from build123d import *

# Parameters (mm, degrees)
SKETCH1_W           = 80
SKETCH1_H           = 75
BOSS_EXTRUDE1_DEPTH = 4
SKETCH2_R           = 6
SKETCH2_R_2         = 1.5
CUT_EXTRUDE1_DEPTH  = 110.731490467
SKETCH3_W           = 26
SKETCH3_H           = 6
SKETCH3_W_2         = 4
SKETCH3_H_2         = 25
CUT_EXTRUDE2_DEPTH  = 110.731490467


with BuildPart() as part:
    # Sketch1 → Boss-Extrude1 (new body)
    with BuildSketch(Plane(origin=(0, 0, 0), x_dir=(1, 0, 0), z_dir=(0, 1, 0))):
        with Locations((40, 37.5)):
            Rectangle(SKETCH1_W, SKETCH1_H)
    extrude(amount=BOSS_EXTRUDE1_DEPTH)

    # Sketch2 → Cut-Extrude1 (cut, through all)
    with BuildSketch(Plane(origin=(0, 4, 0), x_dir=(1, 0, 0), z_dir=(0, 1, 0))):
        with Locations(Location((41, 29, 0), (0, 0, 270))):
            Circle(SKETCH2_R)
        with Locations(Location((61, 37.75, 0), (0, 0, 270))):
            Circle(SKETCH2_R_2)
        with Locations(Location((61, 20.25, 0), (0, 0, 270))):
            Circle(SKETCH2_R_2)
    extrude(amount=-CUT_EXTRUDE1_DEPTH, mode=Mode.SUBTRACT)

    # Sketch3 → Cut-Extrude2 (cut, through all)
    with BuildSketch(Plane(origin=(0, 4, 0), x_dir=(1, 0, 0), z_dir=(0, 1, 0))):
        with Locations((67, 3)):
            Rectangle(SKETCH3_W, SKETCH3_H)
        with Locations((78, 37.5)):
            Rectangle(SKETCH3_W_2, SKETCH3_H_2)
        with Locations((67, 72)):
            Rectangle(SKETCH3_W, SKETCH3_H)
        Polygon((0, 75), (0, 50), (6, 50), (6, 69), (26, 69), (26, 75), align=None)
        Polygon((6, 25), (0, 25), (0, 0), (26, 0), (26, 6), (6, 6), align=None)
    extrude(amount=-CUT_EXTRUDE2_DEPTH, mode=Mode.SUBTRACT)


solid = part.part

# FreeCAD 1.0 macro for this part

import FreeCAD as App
import Part
import Sketcher
Q = App.Units.Quantity


def add_polygon(sketch, points):
    """Adds a closed chain of lines whose ends are joined by coincident constraints."""
    first, n = sketch.GeometryCount, len(points)
    for a, b in zip(points, points[1:] + points[:1]):
        sketch.addGeometry(Part.LineSegment(App.Vector(*a, 0), App.Vector(*b, 0)), False)
    for i in range(n):
        sketch.addConstraint(Sketcher.Constraint("Coincident", first + i, 2, first + (i + 1) % n, 1))

doc = App.newDocument("Part")
body = doc.addObject("PartDesign::Body", "Body")

sketch1 = doc.addObject("Sketcher::SketchObject", "Sketch")
body.addObject(sketch1)
sketch1.AttachmentSupport = (doc.XZ_Plane, [""])
sketch1.MapMode = "FlatFace"
add_polygon(sketch1, [(0, -75), (0, 0), (80, 0), (80, -75)])
sketch1.addConstraint([
    Sketcher.Constraint("Vertical", 0),
    Sketcher.Constraint("Horizontal", 1),
    Sketcher.Constraint("Vertical", 2),
    Sketcher.Constraint("Horizontal", 3),
    Sketcher.Constraint("Coincident", 0, 2, -1, 1),
    Sketcher.Constraint("DistanceX", 1, 1, 1, 2, Q("80 mm")),
    Sketcher.Constraint("DistanceY", 0, 1, 0, 2, Q("75 mm")),
])
pad1 = doc.addObject("PartDesign::Pad", "Pad")
body.addObject(pad1)
pad1.Profile = sketch1
pad1.Length = 4
pad1.Reversed = True

sketch2 = doc.addObject("Sketcher::SketchObject", "Sketch001")
body.addObject(sketch2)
sketch2.AttachmentSupport = (doc.XZ_Plane, [""])
sketch2.MapMode = "FlatFace"
sketch2.AttachmentOffset = App.Placement(App.Vector(0, 0, -4), App.Rotation())
sketch2.addGeometry([
    Part.Circle(App.Vector(41, -29, 0), App.Vector(0, 0, 1), 6),
    Part.Circle(App.Vector(61, -37.8, 0), App.Vector(0, 0, 1), 1.5),
    Part.Circle(App.Vector(61, -20.2, 0), App.Vector(0, 0, 1), 1.5),
], False)
sketch2.addConstraint([
    Sketcher.Constraint("Equal", 1, 2),
    Sketcher.Constraint("Vertical", 1, 3, 2, 3),
    Sketcher.Constraint("Diameter", 0, Q("12 mm")),
    Sketcher.Constraint("Diameter", 1, Q("3 mm")),
    Sketcher.Constraint("DistanceX", -1, 1, 0, 3, Q("41 mm")),
    Sketcher.Constraint("DistanceY", 0, 3, -1, 1, Q("29 mm")),
    Sketcher.Constraint("DistanceX", -1, 1, 1, 3, Q("61 mm")),
    Sketcher.Constraint("DistanceY", 1, 3, 2, 3, Q("17.5 mm")),
    Sketcher.Constraint("DistanceY", 1, 3, -1, 1, Q("37.75 mm")),
])
pocket1 = doc.addObject("PartDesign::Pocket", "Pocket")
body.addObject(pocket1)
pocket1.Profile = sketch2
pocket1.Type = "ThroughAll"
pocket1.Reversed = True

sketch3 = doc.addObject("Sketcher::SketchObject", "Sketch002")
body.addObject(sketch3)
sketch3.AttachmentSupport = (doc.XZ_Plane, [""])
sketch3.MapMode = "FlatFace"
sketch3.AttachmentOffset = App.Placement(App.Vector(0, 0, -4), App.Rotation())
add_polygon(sketch3, [(54, -6), (54, 0), (80, 0), (80, -6)])
add_polygon(sketch3, [(76, -50), (76, -25), (80, -25), (80, -50)])
add_polygon(sketch3, [(54, -75), (54, -69), (80, -69), (80, -75)])
add_polygon(sketch3, [(0, -75), (0, -50), (6, -50), (6, -69), (26, -69), (26, -75)])
add_polygon(sketch3, [(6, -25), (0, -25), (0, 0), (26, 0), (26, -6), (6, -6)])
sketch3.addConstraint([
    Sketcher.Constraint("Vertical", 0),
    Sketcher.Constraint("Horizontal", 1),
    Sketcher.Constraint("Vertical", 2),
    Sketcher.Constraint("Horizontal", 3),
    Sketcher.Constraint("Vertical", 4),
    Sketcher.Constraint("Horizontal", 5),
    Sketcher.Constraint("Vertical", 6),
    Sketcher.Constraint("Horizontal", 7),
    Sketcher.Constraint("Vertical", 8),
    Sketcher.Constraint("Horizontal", 9),
    Sketcher.Constraint("Vertical", 10),
    Sketcher.Constraint("Horizontal", 11),
    Sketcher.Constraint("Vertical", 12),
    Sketcher.Constraint("Horizontal", 13),
    Sketcher.Constraint("Vertical", 14),
    Sketcher.Constraint("Horizontal", 15),
    Sketcher.Constraint("Vertical", 16),
    Sketcher.Constraint("Horizontal", 17),
    Sketcher.Constraint("Horizontal", 18),
    Sketcher.Constraint("Vertical", 19),
    Sketcher.Constraint("Horizontal", 20),
    Sketcher.Constraint("Vertical", 21),
    Sketcher.Constraint("Horizontal", 22),
    Sketcher.Constraint("Vertical", 23),
    Sketcher.Constraint("Coincident", 19, 2, -1, 1),
    Sketcher.Constraint("PointOnObject", 0, 2, -1),
    Sketcher.Constraint("PointOnObject", 12, 2, -2),
    Sketcher.Constraint("Horizontal", 7, 2, 12, 2),
    Sketcher.Constraint("Horizontal", 9, 2, 14, 2),
    Sketcher.Constraint("Horizontal", 11, 2, 16, 2),
    Sketcher.Constraint("Horizontal", 5, 2, 18, 2),
    Sketcher.Constraint("Horizontal", 3, 2, 21, 2),
    Sketcher.Constraint("Vertical", 2, 2, 5, 2),
    Sketcher.Constraint("Vertical", 3, 2, 8, 2),
    Sketcher.Constraint("Vertical", 6, 2, 9, 2),
    Sketcher.Constraint("Vertical", 16, 2, 20, 2),
    Sketcher.Constraint("Vertical", 14, 2, 22, 2),
    Sketcher.Constraint("Equal", 11, 17),
    Sketcher.Constraint("Equal", 18, 0),
    Sketcher.Constraint("Equal", 2, 8),
    Sketcher.Constraint("Equal", 6, 12),
    Sketcher.Constraint("Equal", 12, 19),
    Sketcher.Constraint("DistanceX", 1, 1, 1, 2, Q("26 mm")),
    Sketcher.Constraint("DistanceX", 5, 1, 5, 2, Q("4 mm")),
    Sketcher.Constraint("DistanceX", 13, 1, 13, 2, Q("6 mm")),
    Sketcher.Constraint("DistanceY", 4, 1, 4, 2, Q("25 mm")),
    Sketcher.Constraint("DistanceX", -1, 1, 0, 2, Q("54 mm")),
])
pocket2 = doc.addObject("PartDesign::Pocket", "Pocket001")
body.addObject(pocket2)
pocket2.Profile = sketch3
pocket2.Type = "ThroughAll"
pocket2.Reversed = True

doc.recompute()
